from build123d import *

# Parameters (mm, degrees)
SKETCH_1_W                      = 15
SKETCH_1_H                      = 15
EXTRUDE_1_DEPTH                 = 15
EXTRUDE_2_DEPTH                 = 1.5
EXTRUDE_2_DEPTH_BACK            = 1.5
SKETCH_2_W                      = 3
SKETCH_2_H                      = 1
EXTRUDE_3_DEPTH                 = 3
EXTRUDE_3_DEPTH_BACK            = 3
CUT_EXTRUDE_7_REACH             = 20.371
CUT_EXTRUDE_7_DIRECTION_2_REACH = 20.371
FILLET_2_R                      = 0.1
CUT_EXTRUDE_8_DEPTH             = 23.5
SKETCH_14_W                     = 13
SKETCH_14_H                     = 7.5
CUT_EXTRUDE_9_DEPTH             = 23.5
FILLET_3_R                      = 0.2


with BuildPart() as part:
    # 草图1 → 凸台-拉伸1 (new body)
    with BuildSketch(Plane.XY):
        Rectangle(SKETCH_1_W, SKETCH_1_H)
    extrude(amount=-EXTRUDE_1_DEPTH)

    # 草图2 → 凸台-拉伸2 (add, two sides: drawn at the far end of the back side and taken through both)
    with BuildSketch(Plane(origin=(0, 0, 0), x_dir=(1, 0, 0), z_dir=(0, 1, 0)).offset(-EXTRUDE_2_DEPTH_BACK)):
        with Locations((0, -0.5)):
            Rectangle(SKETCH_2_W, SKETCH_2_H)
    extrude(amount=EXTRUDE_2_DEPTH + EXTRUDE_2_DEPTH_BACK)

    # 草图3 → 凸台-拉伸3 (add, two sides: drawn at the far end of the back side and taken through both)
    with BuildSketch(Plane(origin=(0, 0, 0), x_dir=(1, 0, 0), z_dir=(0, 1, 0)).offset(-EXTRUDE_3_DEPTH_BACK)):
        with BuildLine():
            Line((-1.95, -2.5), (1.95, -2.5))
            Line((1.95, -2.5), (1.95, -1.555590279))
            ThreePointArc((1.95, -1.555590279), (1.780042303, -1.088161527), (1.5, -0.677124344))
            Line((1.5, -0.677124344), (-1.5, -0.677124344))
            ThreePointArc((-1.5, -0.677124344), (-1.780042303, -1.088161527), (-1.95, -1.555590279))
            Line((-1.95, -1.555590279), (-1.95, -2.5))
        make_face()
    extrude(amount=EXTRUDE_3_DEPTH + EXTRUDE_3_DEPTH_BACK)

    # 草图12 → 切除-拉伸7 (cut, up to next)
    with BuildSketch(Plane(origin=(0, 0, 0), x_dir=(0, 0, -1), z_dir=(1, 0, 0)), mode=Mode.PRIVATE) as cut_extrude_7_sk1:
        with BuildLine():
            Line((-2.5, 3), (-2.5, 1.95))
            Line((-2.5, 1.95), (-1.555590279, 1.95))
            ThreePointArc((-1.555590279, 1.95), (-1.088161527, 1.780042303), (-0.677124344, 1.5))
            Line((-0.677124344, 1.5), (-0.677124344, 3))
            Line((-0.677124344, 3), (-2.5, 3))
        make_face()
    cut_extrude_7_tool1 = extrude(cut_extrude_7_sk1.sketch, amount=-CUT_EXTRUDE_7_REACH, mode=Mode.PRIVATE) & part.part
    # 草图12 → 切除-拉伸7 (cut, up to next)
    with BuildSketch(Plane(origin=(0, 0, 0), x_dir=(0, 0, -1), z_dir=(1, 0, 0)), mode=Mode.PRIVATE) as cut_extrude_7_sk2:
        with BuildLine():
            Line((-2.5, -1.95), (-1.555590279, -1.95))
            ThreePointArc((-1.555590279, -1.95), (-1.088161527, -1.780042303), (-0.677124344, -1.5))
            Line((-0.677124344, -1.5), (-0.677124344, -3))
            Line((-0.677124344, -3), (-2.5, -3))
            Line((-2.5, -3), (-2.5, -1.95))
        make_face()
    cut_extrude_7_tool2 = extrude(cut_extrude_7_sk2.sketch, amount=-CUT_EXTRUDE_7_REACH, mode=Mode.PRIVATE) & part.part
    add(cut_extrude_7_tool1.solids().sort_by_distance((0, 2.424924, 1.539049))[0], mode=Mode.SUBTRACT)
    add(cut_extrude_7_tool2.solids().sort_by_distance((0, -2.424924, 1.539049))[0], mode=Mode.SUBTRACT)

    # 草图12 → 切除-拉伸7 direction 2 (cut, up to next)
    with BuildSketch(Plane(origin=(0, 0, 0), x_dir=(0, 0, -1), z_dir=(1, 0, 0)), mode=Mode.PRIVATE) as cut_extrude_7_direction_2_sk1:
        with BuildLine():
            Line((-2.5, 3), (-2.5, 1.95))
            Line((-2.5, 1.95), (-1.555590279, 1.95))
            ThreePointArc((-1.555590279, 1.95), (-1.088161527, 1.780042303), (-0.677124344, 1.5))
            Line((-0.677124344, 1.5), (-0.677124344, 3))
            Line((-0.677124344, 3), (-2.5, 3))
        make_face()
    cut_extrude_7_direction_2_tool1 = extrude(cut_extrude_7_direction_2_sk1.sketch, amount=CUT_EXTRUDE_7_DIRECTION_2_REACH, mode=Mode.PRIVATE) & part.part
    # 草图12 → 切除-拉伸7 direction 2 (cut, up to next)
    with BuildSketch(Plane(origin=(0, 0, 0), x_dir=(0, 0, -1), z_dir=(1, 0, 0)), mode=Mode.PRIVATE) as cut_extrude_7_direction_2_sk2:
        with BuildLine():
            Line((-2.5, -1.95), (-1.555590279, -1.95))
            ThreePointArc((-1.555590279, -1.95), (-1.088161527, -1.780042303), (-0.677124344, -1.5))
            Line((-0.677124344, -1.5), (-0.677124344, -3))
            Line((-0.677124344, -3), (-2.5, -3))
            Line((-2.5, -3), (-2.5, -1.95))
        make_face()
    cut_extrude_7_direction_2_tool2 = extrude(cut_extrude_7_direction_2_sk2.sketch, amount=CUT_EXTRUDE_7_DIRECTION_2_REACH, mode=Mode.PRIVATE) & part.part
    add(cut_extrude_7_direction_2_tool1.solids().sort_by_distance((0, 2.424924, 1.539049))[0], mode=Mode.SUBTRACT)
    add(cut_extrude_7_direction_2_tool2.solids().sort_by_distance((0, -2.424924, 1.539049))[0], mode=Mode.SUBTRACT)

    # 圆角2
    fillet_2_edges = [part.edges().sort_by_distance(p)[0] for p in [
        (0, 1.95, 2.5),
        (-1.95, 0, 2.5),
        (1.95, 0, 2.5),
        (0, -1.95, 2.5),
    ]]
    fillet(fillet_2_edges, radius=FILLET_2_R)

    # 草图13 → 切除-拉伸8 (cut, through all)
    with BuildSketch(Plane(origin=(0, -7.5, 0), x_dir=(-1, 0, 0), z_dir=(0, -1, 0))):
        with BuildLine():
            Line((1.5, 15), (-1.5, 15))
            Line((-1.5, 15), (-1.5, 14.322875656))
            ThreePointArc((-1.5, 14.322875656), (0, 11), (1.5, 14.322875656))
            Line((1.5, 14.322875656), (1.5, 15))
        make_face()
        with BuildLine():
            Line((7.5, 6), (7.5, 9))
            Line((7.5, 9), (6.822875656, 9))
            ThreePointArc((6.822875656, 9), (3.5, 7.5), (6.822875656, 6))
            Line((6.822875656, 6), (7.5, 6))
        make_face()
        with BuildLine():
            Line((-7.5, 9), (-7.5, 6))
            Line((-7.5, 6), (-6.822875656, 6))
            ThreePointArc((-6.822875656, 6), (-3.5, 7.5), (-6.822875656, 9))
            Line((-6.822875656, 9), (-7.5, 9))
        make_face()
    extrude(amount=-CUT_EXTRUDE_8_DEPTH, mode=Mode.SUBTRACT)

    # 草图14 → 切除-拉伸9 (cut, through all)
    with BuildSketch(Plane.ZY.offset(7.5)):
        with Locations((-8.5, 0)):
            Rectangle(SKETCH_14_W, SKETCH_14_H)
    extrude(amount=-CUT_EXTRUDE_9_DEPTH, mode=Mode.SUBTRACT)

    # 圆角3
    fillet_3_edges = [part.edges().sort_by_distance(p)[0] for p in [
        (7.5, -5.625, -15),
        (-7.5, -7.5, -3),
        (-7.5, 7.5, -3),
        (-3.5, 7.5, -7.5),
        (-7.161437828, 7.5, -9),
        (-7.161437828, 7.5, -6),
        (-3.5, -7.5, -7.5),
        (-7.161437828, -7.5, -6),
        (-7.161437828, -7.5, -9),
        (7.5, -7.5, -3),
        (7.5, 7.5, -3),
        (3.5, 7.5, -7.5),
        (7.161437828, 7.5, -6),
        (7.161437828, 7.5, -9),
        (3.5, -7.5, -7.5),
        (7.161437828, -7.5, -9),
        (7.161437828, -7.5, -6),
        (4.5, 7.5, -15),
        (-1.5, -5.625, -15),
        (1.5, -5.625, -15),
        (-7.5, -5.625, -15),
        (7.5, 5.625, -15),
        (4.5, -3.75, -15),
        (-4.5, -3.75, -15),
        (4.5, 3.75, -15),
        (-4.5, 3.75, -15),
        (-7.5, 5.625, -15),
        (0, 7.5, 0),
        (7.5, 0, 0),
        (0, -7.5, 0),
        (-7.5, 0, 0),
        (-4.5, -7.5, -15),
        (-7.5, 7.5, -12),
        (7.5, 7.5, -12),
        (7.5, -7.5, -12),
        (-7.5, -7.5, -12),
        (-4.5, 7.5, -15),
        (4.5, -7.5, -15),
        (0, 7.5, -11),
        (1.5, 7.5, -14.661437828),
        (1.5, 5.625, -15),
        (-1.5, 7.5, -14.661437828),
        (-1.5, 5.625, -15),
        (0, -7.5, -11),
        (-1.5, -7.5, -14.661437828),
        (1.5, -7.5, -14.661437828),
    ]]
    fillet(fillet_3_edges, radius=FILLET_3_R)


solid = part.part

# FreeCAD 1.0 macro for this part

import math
import FreeCAD as App
import Part
import Sketcher
from FreeCAD import Vector


def edges_at(feature, points):
    """Names of the edges that pass closest to the given points."""
    edges = feature.Shape.Edges
    near = lambda p: min(range(len(edges)), key=lambda i: edges[i].distToShape(Part.Vertex(*p))[0])
    return sorted({f"Edge{near(p) + 1}" for p in points})

doc = App.newDocument("Part")
body = doc.addObject("PartDesign::Body", "Body")

# Sketch on XY plane
sketch1 = body.newObject("Sketcher::SketchObject", "Sketch")
sketch1.AttachmentSupport = (doc.getObject("XY_Plane"), [""])
sketch1.MapMode = "FlatFace"
sketch1.addGeometry(Part.LineSegment(Vector(-8, 8, 0), Vector(-8, -8, 0)), False)
sketch1.addGeometry(Part.LineSegment(Vector(-8, -8, 0), Vector(8, -8, 0)), False)
sketch1.addGeometry(Part.LineSegment(Vector(8, -8, 0), Vector(8, 8, 0)), False)
sketch1.addGeometry(Part.LineSegment(Vector(8, 8, 0), Vector(-8, 8, 0)), False)
sketch1.addConstraint(Sketcher.Constraint("Coincident", 0, 2, 1, 1))
sketch1.addConstraint(Sketcher.Constraint("Coincident", 1, 2, 2, 1))
sketch1.addConstraint(Sketcher.Constraint("Coincident", 2, 2, 3, 1))
sketch1.addConstraint(Sketcher.Constraint("Coincident", 3, 2, 0, 1))
sketch1.addConstraint(Sketcher.Constraint("Vertical", 0))
sketch1.addConstraint(Sketcher.Constraint("Horizontal", 1))
sketch1.addConstraint(Sketcher.Constraint("Vertical", 2))
sketch1.addConstraint(Sketcher.Constraint("Horizontal", 3))
sketch1.addConstraint(Sketcher.Constraint("Symmetric", 0, 2, 2, 2, -1, 1))
sketch1.addConstraint(Sketcher.Constraint("Equal", 3, 0))
sketch1.addConstraint(Sketcher.Constraint("DistanceX", 1, 1, 1, 2, 15.0))
pad1 = body.newObject("PartDesign::Pad", "Pad")
pad1.Profile = sketch1
pad1.Length = 15
pad1.Reversed = True

# Sketch on XZ plane
sketch2 = body.newObject("Sketcher::SketchObject", "Sketch001")
sketch2.AttachmentSupport = (doc.getObject("XZ_Plane"), [""])
sketch2.MapMode = "FlatFace"
sketch2.addGeometry(Part.LineSegment(Vector(-1.5, 0, 0), Vector(-1.5, 1, 0)), False)
sketch2.addGeometry(Part.LineSegment(Vector(-1.5, 1, 0), Vector(1.5, 1, 0)), False)
sketch2.addGeometry(Part.LineSegment(Vector(1.5, 1, 0), Vector(1.5, 0, 0)), False)
sketch2.addGeometry(Part.LineSegment(Vector(1.5, 0, 0), Vector(-1.5, 0, 0)), False)
sketch2.addConstraint(Sketcher.Constraint("Coincident", 0, 2, 1, 1))
sketch2.addConstraint(Sketcher.Constraint("Coincident", 1, 2, 2, 1))
sketch2.addConstraint(Sketcher.Constraint("Coincident", 2, 2, 3, 1))
sketch2.addConstraint(Sketcher.Constraint("Coincident", 3, 2, 0, 1))
sketch2.addConstraint(Sketcher.Constraint("Vertical", 0))
sketch2.addConstraint(Sketcher.Constraint("Horizontal", 1))
sketch2.addConstraint(Sketcher.Constraint("Vertical", 2))
sketch2.addConstraint(Sketcher.Constraint("Horizontal", 3))
sketch2.addConstraint(Sketcher.Constraint("Symmetric", 2, 2, 3, 2, -1, 1))
sketch2.addConstraint(Sketcher.Constraint("DistanceX", 1, 1, 1, 2, 3.0))
sketch2.addConstraint(Sketcher.Constraint("DistanceY", 0, 1, 0, 2, 1.0))
pad2 = body.newObject("PartDesign::Pad", "Pad001")
pad2.Profile = sketch2
pad2.Type = "TwoLengths"
pad2.Length = 1.5
pad2.Length2 = 1.5
pad2.Reversed = True

# Sketch on XZ plane
sketch3 = body.newObject("Sketcher::SketchObject", "Sketch002")
sketch3.AttachmentSupport = (doc.getObject("XZ_Plane"), [""])
sketch3.MapMode = "FlatFace"
sketch3.addGeometry(Part.LineSegment(Vector(-1.9, 2.5, 0), Vector(1.9, 2.5, 0)), False)
sketch3.addGeometry(Part.LineSegment(Vector(1.9, 2.5, 0), Vector(1.9, 1.6, 0)), False)
sketch3.addGeometry(Part.ArcOfCircle(Part.Circle(Vector(0, 2, 0), Vector(0, 0, 1), 2), math.radians(-41), math.radians(-13)), False)
sketch3.addGeometry(Part.LineSegment(Vector(1.5, 0.7, 0), Vector(-1.5, 0.7, 0)), False)
sketch3.addGeometry(Part.ArcOfCircle(Part.Circle(Vector(0, 2, 0), Vector(0, 0, 1), 2), math.radians(-167), math.radians(-139)), False)
sketch3.addGeometry(Part.LineSegment(Vector(-1.9, 1.6, 0), Vector(-1.9, 2.5, 0)), False)
sketch3.addConstraint(Sketcher.Constraint("Coincident", 0, 2, 1, 1))
sketch3.addConstraint(Sketcher.Constraint("Coincident", 1, 2, 2, 2))
sketch3.addConstraint(Sketcher.Constraint("Coincident", 2, 1, 3, 1))
sketch3.addConstraint(Sketcher.Constraint("Coincident", 3, 2, 4, 2))
sketch3.addConstraint(Sketcher.Constraint("Coincident", 4, 1, 5, 1))
sketch3.addConstraint(Sketcher.Constraint("Coincident", 5, 2, 0, 1))
sketch3.addConstraint(Sketcher.Constraint("Horizontal", 0))
sketch3.addConstraint(Sketcher.Constraint("Vertical", 1))
sketch3.addConstraint(Sketcher.Constraint("Horizontal", 3))
sketch3.addConstraint(Sketcher.Constraint("Vertical", 5))
sketch3.addConstraint(Sketcher.Constraint("Coincident", 4, 3, 2, 3))
sketch3.addConstraint(Sketcher.Constraint("Equal", 2, 4))
sketch3.addConstraint(Sketcher.Constraint("Symmetric", 1, 2, 4, 1, -2))
sketch3.addConstraint(Sketcher.Constraint("Radius", 2, 2.0))
sketch3.addConstraint(Sketcher.Constraint("DistanceX", 3, 2, 3, 1, 3.0))
sketch3.addConstraint(Sketcher.Constraint("DistanceX", 0, 1, 0, 2, 3.9))
sketch3.addConstraint(Sketcher.Constraint("DistanceY", -1, 1, 2, 3, 2.0))
sketch3.addConstraint(Sketcher.Constraint("DistanceY", -1, 1, 0, 2, 2.5))
pad3 = body.newObject("PartDesign::Pad", "Pad002")
pad3.Profile = sketch3
pad3.Type = "TwoLengths"
pad3.Length = 3
pad3.Length2 = 3
pad3.Reversed = True

# Sketch on YZ plane
sketch4 = body.newObject("Sketcher::SketchObject", "Sketch003")
sketch4.AttachmentSupport = (doc.getObject("YZ_Plane"), [""])
sketch4.MapMode = "FlatFace"
sketch4.addGeometry(Part.LineSegment(Vector(3, 2.5, 0), Vector(1.9, 2.5, 0)), False)
sketch4.addGeometry(Part.LineSegment(Vector(1.9, 2.5, 0), Vector(1.9, 1.6, 0)), False)
sketch4.addGeometry(Part.ArcOfCircle(Part.Circle(Vector(0, 2, 0), Vector(0, 0, 1), 2), math.radians(-41), math.radians(-13)), False)
sketch4.addGeometry(Part.LineSegment(Vector(1.5, 0.7, 0), Vector(3, 0.7, 0)), False)
sketch4.addGeometry(Part.LineSegment(Vector(3, 0.7, 0), Vector(3, 2.5, 0)), False)
sketch4.addConstraint(Sketcher.Constraint("Coincident", 0, 2, 1, 1))
sketch4.addConstraint(Sketcher.Constraint("Coincident", 1, 2, 2, 2))
sketch4.addConstraint(Sketcher.Constraint("Coincident", 2, 1, 3, 1))
sketch4.addConstraint(Sketcher.Constraint("Coincident", 3, 2, 4, 1))
sketch4.addConstraint(Sketcher.Constraint("Coincident", 4, 2, 0, 1))
sketch4.addConstraint(Sketcher.Constraint("Horizontal", 0))
sketch4.addConstraint(Sketcher.Constraint("Vertical", 1))
sketch4.addConstraint(Sketcher.Constraint("Horizontal", 3))
sketch4.addConstraint(Sketcher.Constraint("Vertical", 4))
sketch4.addConstraint(Sketcher.Constraint("PointOnObject", 2, 3, -2))
sketch4.addConstraint(Sketcher.Constraint("Radius", 2, 2.0))
sketch4.addConstraint(Sketcher.Constraint("DistanceX", 3, 1, 3, 2, 1.5))
sketch4.addConstraint(Sketcher.Constraint("DistanceY", -1, 1, 2, 3, 2.0))
sketch4.addConstraint(Sketcher.Constraint("DistanceX", -1, 1, 3, 2, 3.0))
sketch4.addConstraint(Sketcher.Constraint("DistanceX", 0, 2, 0, 1, 1.05))
sketch4.addConstraint(Sketcher.Constraint("DistanceY", -1, 1, 0, 2, 2.5))
pocket1 = body.newObject("PartDesign::Pocket", "Pocket")
pocket1.Profile = sketch4
pocket1.Type = "UpToFirst"

# Sketch on YZ plane
sketch5 = body.newObject("Sketcher::SketchObject", "Sketch004")
sketch5.AttachmentSupport = (doc.getObject("YZ_Plane"), [""])
sketch5.MapMode = "FlatFace"
sketch5.addGeometry(Part.LineSegment(Vector(-1.9, 1.6, 0), Vector(-1.9, 2.5, 0)), False)
sketch5.addGeometry(Part.LineSegment(Vector(-1.9, 2.5, 0), Vector(-3, 2.5, 0)), False)
sketch5.addGeometry(Part.LineSegment(Vector(-3, 2.5, 0), Vector(-3, 0.7, 0)), False)
sketch5.addGeometry(Part.LineSegment(Vector(-3, 0.7, 0), Vector(-1.5, 0.7, 0)), False)
sketch5.addGeometry(Part.ArcOfCircle(Part.Circle(Vector(0, 2, 0), Vector(0, 0, 1), 2), math.radians(-167), math.radians(-139)), False)
sketch5.addConstraint(Sketcher.Constraint("Coincident", 0, 2, 1, 1))
sketch5.addConstraint(Sketcher.Constraint("Coincident", 1, 2, 2, 1))
sketch5.addConstraint(Sketcher.Constraint("Coincident", 2, 2, 3, 1))
sketch5.addConstraint(Sketcher.Constraint("Coincident", 3, 2, 4, 2))
sketch5.addConstraint(Sketcher.Constraint("Coincident", 4, 1, 0, 1))
sketch5.addConstraint(Sketcher.Constraint("Vertical", 0))
sketch5.addConstraint(Sketcher.Constraint("Horizontal", 1))
sketch5.addConstraint(Sketcher.Constraint("Vertical", 2))
sketch5.addConstraint(Sketcher.Constraint("Horizontal", 3))
sketch5.addConstraint(Sketcher.Constraint("PointOnObject", 4, 3, -2))
sketch5.addConstraint(Sketcher.Constraint("Radius", 4, 2.0))
sketch5.addConstraint(Sketcher.Constraint("DistanceX", 3, 1, 3, 2, 1.5))
sketch5.addConstraint(Sketcher.Constraint("DistanceY", -1, 1, 4, 3, 2.0))
sketch5.addConstraint(Sketcher.Constraint("DistanceX", 1, 2, -1, 1, 3.0))
sketch5.addConstraint(Sketcher.Constraint("DistanceX", 1, 2, 1, 1, 1.05))
sketch5.addConstraint(Sketcher.Constraint("DistanceY", -1, 1, 0, 2, 2.5))
pocket2 = body.newObject("PartDesign::Pocket", "Pocket001")
pocket2.Profile = sketch5
pocket2.Type = "UpToFirst"

# Sketch on YZ plane
sketch6 = body.newObject("Sketcher::SketchObject", "Sketch005")
sketch6.AttachmentSupport = (doc.getObject("YZ_Plane"), [""])
sketch6.MapMode = "FlatFace"
sketch6.addGeometry(Part.LineSegment(Vector(3, 2.5, 0), Vector(1.9, 2.5, 0)), False)
sketch6.addGeometry(Part.LineSegment(Vector(1.9, 2.5, 0), Vector(1.9, 1.6, 0)), False)
sketch6.addGeometry(Part.ArcOfCircle(Part.Circle(Vector(0, 2, 0), Vector(0, 0, 1), 2), math.radians(-41), math.radians(-13)), False)
sketch6.addGeometry(Part.LineSegment(Vector(1.5, 0.7, 0), Vector(3, 0.7, 0)), False)
sketch6.addGeometry(Part.LineSegment(Vector(3, 0.7, 0), Vector(3, 2.5, 0)), False)
sketch6.addConstraint(Sketcher.Constraint("Coincident", 0, 2, 1, 1))
sketch6.addConstraint(Sketcher.Constraint("Coincident", 1, 2, 2, 2))
sketch6.addConstraint(Sketcher.Constraint("Coincident", 2, 1, 3, 1))
sketch6.addConstraint(Sketcher.Constraint("Coincident", 3, 2, 4, 1))
sketch6.addConstraint(Sketcher.Constraint("Coincident", 4, 2, 0, 1))
sketch6.addConstraint(Sketcher.Constraint("Horizontal", 0))
sketch6.addConstraint(Sketcher.Constraint("Vertical", 1))
sketch6.addConstraint(Sketcher.Constraint("Horizontal", 3))
sketch6.addConstraint(Sketcher.Constraint("Vertical", 4))
sketch6.addConstraint(Sketcher.Constraint("PointOnObject", 2, 3, -2))
sketch6.addConstraint(Sketcher.Constraint("Radius", 2, 2.0))
sketch6.addConstraint(Sketcher.Constraint("DistanceX", 3, 1, 3, 2, 1.5))
sketch6.addConstraint(Sketcher.Constraint("DistanceY", -1, 1, 2, 3, 2.0))
sketch6.addConstraint(Sketcher.Constraint("DistanceX", -1, 1, 3, 2, 3.0))
sketch6.addConstraint(Sketcher.Constraint("DistanceX", 0, 2, 0, 1, 1.05))
sketch6.addConstraint(Sketcher.Constraint("DistanceY", -1, 1, 0, 2, 2.5))
pocket3 = body.newObject("PartDesign::Pocket", "Pocket002")
pocket3.Profile = sketch6
pocket3.Type = "UpToFirst"
pocket3.Reversed = True

# Sketch on YZ plane
sketch7 = body.newObject("Sketcher::SketchObject", "Sketch006")
sketch7.AttachmentSupport = (doc.getObject("YZ_Plane"), [""])
sketch7.MapMode = "FlatFace"
sketch7.addGeometry(Part.LineSegment(Vector(-1.9, 1.6, 0), Vector(-1.9, 2.5, 0)), False)
sketch7.addGeometry(Part.LineSegment(Vector(-1.9, 2.5, 0), Vector(-3, 2.5, 0)), False)
sketch7.addGeometry(Part.LineSegment(Vector(-3, 2.5, 0), Vector(-3, 0.7, 0)), False)
sketch7.addGeometry(Part.LineSegment(Vector(-3, 0.7, 0), Vector(-1.5, 0.7, 0)), False)
sketch7.addGeometry(Part.ArcOfCircle(Part.Circle(Vector(0, 2, 0), Vector(0, 0, 1), 2), math.radians(-167), math.radians(-139)), False)
sketch7.addConstraint(Sketcher.Constraint("Coincident", 0, 2, 1, 1))
sketch7.addConstraint(Sketcher.Constraint("Coincident", 1, 2, 2, 1))
sketch7.addConstraint(Sketcher.Constraint("Coincident", 2, 2, 3, 1))
sketch7.addConstraint(Sketcher.Constraint("Coincident", 3, 2, 4, 2))
sketch7.addConstraint(Sketcher.Constraint("Coincident", 4, 1, 0, 1))
sketch7.addConstraint(Sketcher.Constraint("Vertical", 0))
sketch7.addConstraint(Sketcher.Constraint("Horizontal", 1))
sketch7.addConstraint(Sketcher.Constraint("Vertical", 2))
sketch7.addConstraint(Sketcher.Constraint("Horizontal", 3))
sketch7.addConstraint(Sketcher.Constraint("PointOnObject", 4, 3, -2))
sketch7.addConstraint(Sketcher.Constraint("Radius", 4, 2.0))
sketch7.addConstraint(Sketcher.Constraint("DistanceX", 3, 1, 3, 2, 1.5))
sketch7.addConstraint(Sketcher.Constraint("DistanceY", -1, 1, 4, 3, 2.0))
sketch7.addConstraint(Sketcher.Constraint("DistanceX", 1, 2, -1, 1, 3.0))
sketch7.addConstraint(Sketcher.Constraint("DistanceX", 1, 2, 1, 1, 1.05))
sketch7.addConstraint(Sketcher.Constraint("DistanceY", -1, 1, 0, 2, 2.5))
pocket4 = body.newObject("PartDesign::Pocket", "Pocket003")
pocket4.Profile = sketch7
pocket4.Type = "UpToFirst"
pocket4.Reversed = True
doc.recompute()

fillet = body.newObject("PartDesign::Fillet", "Fillet")
fillet.Base = (pocket4, edges_at(pocket4, [
    (0, 1.95, 2.5),
    (-1.95, 0, 2.5),
    (1.95, 0, 2.5),
    (0, -1.95, 2.5),
]))
fillet.Radius = 0.1

# Sketch on XZ plane
sketch8 = body.newObject("Sketcher::SketchObject", "Sketch007")
sketch8.AttachmentSupport = (doc.getObject("XZ_Plane"), [""])
sketch8.MapMode = "FlatFace"
sketch8.AttachmentOffset = App.Placement(Vector(0, 0, 7.5), App.Rotation())
sketch8.addGeometry(Part.LineSegment(Vector(-1.5, -15, 0), Vector(1.5, -15, 0)), False)
sketch8.addGeometry(Part.LineSegment(Vector(1.5, -15, 0), Vector(1.5, -14.3, 0)), False)
sketch8.addGeometry(Part.ArcOfCircle(Part.Circle(Vector(0, -13, 0), Vector(0, 0, 1), 2), math.radians(-41), math.radians(221)), False)
sketch8.addGeometry(Part.LineSegment(Vector(-1.5, -14.3, 0), Vector(-1.5, -15, 0)), False)
sketch8.addGeometry(Part.LineSegment(Vector(-7.5, -6, 0), Vector(-7.5, -9, 0)), False)
sketch8.addGeometry(Part.LineSegment(Vector(-7.5, -9, 0), Vector(-6.8, -9, 0)), False)
sketch8.addGeometry(Part.ArcOfCircle(Part.Circle(Vector(-5.5, -7.5, 0), Vector(0, 0, 1), 2), math.radians(-131), math.radians(131)), False)
sketch8.addGeometry(Part.LineSegment(Vector(-6.8, -6, 0), Vector(-7.5, -6, 0)), False)
sketch8.addGeometry(Part.LineSegment(Vector(7.5, -9, 0), Vector(7.5, -6, 0)), False)
sketch8.addGeometry(Part.LineSegment(Vector(7.5, -6, 0), Vector(6.8, -6, 0)), False)
sketch8.addGeometry(Part.ArcOfCircle(Part.Circle(Vector(5.5, -7.5, 0), Vector(0, 0, 1), 2), math.radians(49), math.radians(311)), False)
sketch8.addGeometry(Part.LineSegment(Vector(6.8, -9, 0), Vector(7.5, -9, 0)), False)
sketch8.addConstraint(Sketcher.Constraint("Coincident", 0, 2, 1, 1))
sketch8.addConstraint(Sketcher.Constraint("Coincident", 1, 2, 2, 1))
sketch8.addConstraint(Sketcher.Constraint("Coincident", 2, 2, 3, 1))
sketch8.addConstraint(Sketcher.Constraint("Coincident", 3, 2, 0, 1))
sketch8.addConstraint(Sketcher.Constraint("Coincident", 4, 2, 5, 1))
sketch8.addConstraint(Sketcher.Constraint("Coincident", 5, 2, 6, 1))
sketch8.addConstraint(Sketcher.Constraint("Coincident", 6, 2, 7, 1))
sketch8.addConstraint(Sketcher.Constraint("Coincident", 7, 2, 4, 1))
sketch8.addConstraint(Sketcher.Constraint("Coincident", 8, 2, 9, 1))
sketch8.addConstraint(Sketcher.Constraint("Coincident", 9, 2, 10, 1))
sketch8.addConstraint(Sketcher.Constraint("Coincident", 10, 2, 11, 1))
sketch8.addConstraint(Sketcher.Constraint("Coincident", 11, 2, 8, 1))
sketch8.addConstraint(Sketcher.Constraint("Horizontal", 0))
sketch8.addConstraint(Sketcher.Constraint("Vertical", 1))
sketch8.addConstraint(Sketcher.Constraint("Vertical", 3))
sketch8.addConstraint(Sketcher.Constraint("Vertical", 4))
sketch8.addConstraint(Sketcher.Constraint("Horizontal", 5))
sketch8.addConstraint(Sketcher.Constraint("Horizontal", 7))
sketch8.addConstraint(Sketcher.Constraint("Vertical", 8))
sketch8.addConstraint(Sketcher.Constraint("Horizontal", 9))
sketch8.addConstraint(Sketcher.Constraint("Horizontal", 11))
sketch8.addConstraint(Sketcher.Constraint("Equal", 2, 6))
sketch8.addConstraint(Sketcher.Constraint("Equal", 6, 10))
sketch8.addConstraint(Sketcher.Constraint("Symmetric", 6, 3, 10, 3, -2))
sketch8.addConstraint(Sketcher.Constraint("Symmetric", 1, 2, 2, 2, -2))
sketch8.addConstraint(Sketcher.Constraint("Symmetric", 7, 2, 8, 2, -2))
sketch8.addConstraint(Sketcher.Constraint("Horizontal", 5, 2, 10, 2))
sketch8.addConstraint(Sketcher.Constraint("Vertical", 5, 2, 6, 2))
sketch8.addConstraint(Sketcher.Constraint("Equal", 11, 1))
sketch8.addConstraint(Sketcher.Constraint("Equal", 0, 4))
sketch8.addConstraint(Sketcher.Constraint("Radius", 2, 2.0))
sketch8.addConstraint(Sketcher.Constraint("DistanceX", 0, 1, 0, 2, 3.0))
sketch8.addConstraint(Sketcher.Constraint("DistanceY", 2, 3, -1, 1, 13.0))
sketch8.addConstraint(Sketcher.Constraint("DistanceY", 0, 2, -1, 1, 15.0))
sketch8.addConstraint(Sketcher.Constraint("DistanceY", 4, 2, -1, 1, 9.0))
sketch8.addConstraint(Sketcher.Constraint("DistanceX", 6, 3, 10, 3, 11.0))
pocket5 = body.newObject("PartDesign::Pocket", "Pocket004")
pocket5.Profile = sketch8
pocket5.Type = "ThroughAll"

# Sketch on YZ plane
sketch9 = body.newObject("Sketcher::SketchObject", "Sketch008")
sketch9.AttachmentSupport = (doc.getObject("YZ_Plane"), [""])
sketch9.MapMode = "FlatFace"
sketch9.AttachmentOffset = App.Placement(Vector(0, 0, -7.5), App.Rotation())
sketch9.addGeometry(Part.LineSegment(Vector(4, -15, 0), Vector(-4, -15, 0)), False)
sketch9.addGeometry(Part.LineSegment(Vector(-4, -15, 0), Vector(-4, -2, 0)), False)
sketch9.addGeometry(Part.LineSegment(Vector(-4, -2, 0), Vector(4, -2, 0)), False)
sketch9.addGeometry(Part.LineSegment(Vector(4, -2, 0), Vector(4, -15, 0)), False)
sketch9.addConstraint(Sketcher.Constraint("Coincident", 0, 2, 1, 1))
sketch9.addConstraint(Sketcher.Constraint("Coincident", 1, 2, 2, 1))
sketch9.addConstraint(Sketcher.Constraint("Coincident", 2, 2, 3, 1))
sketch9.addConstraint(Sketcher.Constraint("Coincident", 3, 2, 0, 1))
sketch9.addConstraint(Sketcher.Constraint("Horizontal", 0))
sketch9.addConstraint(Sketcher.Constraint("Vertical", 1))
sketch9.addConstraint(Sketcher.Constraint("Horizontal", 2))
sketch9.addConstraint(Sketcher.Constraint("Vertical", 3))
sketch9.addConstraint(Sketcher.Constraint("DistanceY", 1, 1, 1, 2, 13.0))
sketch9.addConstraint(Sketcher.Constraint("DistanceX", 0, 2, 0, 1, 7.5))
sketch9.addConstraint(Sketcher.Constraint("DistanceY", 0, 2, -1, 1, 15.0))
sketch9.addConstraint(Sketcher.Constraint("DistanceX", 0, 2, -1, 1, 3.75))
pocket6 = body.newObject("PartDesign::Pocket", "Pocket005")
pocket6.Profile = sketch9
pocket6.Type = "ThroughAll"
pocket6.Reversed = True
doc.recompute()

fillet2 = body.newObject("PartDesign::Fillet", "Fillet001")
fillet2.Base = (pocket6, edges_at(pocket6, [
    (7.5, -5.625, -15),
    (-7.5, -7.5, -3),
    (-7.5, 7.5, -3),
    (-3.5, 7.5, -7.5),
    (-7.161, 7.5, -9),
    (-7.161, 7.5, -6),
    (-3.5, -7.5, -7.5),
    (-7.161, -7.5, -6),
    (-7.161, -7.5, -9),
    (7.5, -7.5, -3),
    (7.5, 7.5, -3),
    (3.5, 7.5, -7.5),
    (7.161, 7.5, -6),
    (7.161, 7.5, -9),
    (3.5, -7.5, -7.5),
    (7.161, -7.5, -9),
    (7.161, -7.5, -6),
    (4.5, 7.5, -15),
    (-1.5, -5.625, -15),
    (1.5, -5.625, -15),
    (-7.5, -5.625, -15),
    (7.5, 5.625, -15),
    (4.5, -3.75, -15),
    (-4.5, -3.75, -15),
    (4.5, 3.75, -15),
    (-4.5, 3.75, -15),
    (-7.5, 5.625, -15),
    (0, 7.5, 0),
    (7.5, 0, 0),
    (0, -7.5, 0),
    (-7.5, 0, 0),
    (-4.5, -7.5, -15),
    (-7.5, 7.5, -12),
    (7.5, 7.5, -12),
    (7.5, -7.5, -12),
    (-7.5, -7.5, -12),
    (-4.5, 7.5, -15),
    (4.5, -7.5, -15),
    (0, 7.5, -11),
    (1.5, 7.5, -14.661),
    (1.5, 5.625, -15),
    (-1.5, 7.5, -14.661),
    (-1.5, 5.625, -15),
    (0, -7.5, -11),
    (-1.5, -7.5, -14.661),
    (1.5, -7.5, -14.661),
]))
fillet2.Radius = 0.2

doc.recompute()
